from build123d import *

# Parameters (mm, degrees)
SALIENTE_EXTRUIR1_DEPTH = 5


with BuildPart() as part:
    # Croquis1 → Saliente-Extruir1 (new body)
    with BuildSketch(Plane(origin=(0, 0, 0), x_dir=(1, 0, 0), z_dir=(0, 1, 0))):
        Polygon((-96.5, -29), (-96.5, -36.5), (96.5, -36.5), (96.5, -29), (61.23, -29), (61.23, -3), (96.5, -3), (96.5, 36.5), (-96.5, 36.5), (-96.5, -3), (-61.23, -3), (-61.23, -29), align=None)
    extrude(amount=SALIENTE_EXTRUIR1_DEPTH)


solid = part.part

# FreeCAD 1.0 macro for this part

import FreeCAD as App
import Part
import Sketcher

V = App.Vector


def add_polygon(sketch, points):
    """Adds a closed chain of lines whose ends are joined by coincident constraints."""
    first, n = sketch.GeometryCount, len(points)
    for a, b in zip(points, points[1:] + points[:1]):
        sketch.addGeometry(Part.LineSegment(App.Vector(*a, 0), App.Vector(*b, 0)), False)
    for i in range(n):
        sketch.addConstraint(Sketcher.Constraint("Coincident", first + i, 2, first + (i + 1) % n, 1))

doc = App.newDocument("Part")
body = doc.addObject("PartDesign::Body", "Body")

sketch1 = body.newObject("Sketcher::SketchObject", "Sketch")
sketch1.AttachmentSupport = (doc.getObject("XZ_Plane"), [""])
sketch1.MapMode = "FlatFace"
add_polygon(sketch1, [(-96, 29), (-96, 36), (96, 36), (96, 29), (61, 29), (61, 3), (96, 3), (96, -36), (-96, -36), (-96, 3), (-61, 3), (-61, 29)])
sketch1.addConstraint(Sketcher.Constraint("Vertical", 0))
sketch1.addConstraint(Sketcher.Constraint("Horizontal", 1))
sketch1.addConstraint(Sketcher.Constraint("Vertical", 2))
sketch1.addConstraint(Sketcher.Constraint("Horizontal", 3))
sketch1.addConstraint(Sketcher.Constraint("Vertical", 4))
sketch1.addConstraint(Sketcher.Constraint("Horizontal", 5))
sketch1.addConstraint(Sketcher.Constraint("Vertical", 6))
sketch1.addConstraint(Sketcher.Constraint("Horizontal", 7))
sketch1.addConstraint(Sketcher.Constraint("Vertical", 8))
sketch1.addConstraint(Sketcher.Constraint("Horizontal", 9))
sketch1.addConstraint(Sketcher.Constraint("Vertical", 10))
sketch1.addConstraint(Sketcher.Constraint("Horizontal", 11))
sketch1.addConstraint(Sketcher.Constraint("Symmetric", 0, 2, 6, 2, -1, 1))
sketch1.addConstraint(Sketcher.Constraint("Symmetric", 5, 2, 8, 2, -2))
sketch1.addConstraint(Sketcher.Constraint("Symmetric", 3, 2, 10, 2, -2))
sketch1.addConstraint(Sketcher.Constraint("Vertical", 2, 2, 5, 2))
sketch1.addConstraint(Sketcher.Constraint("DistanceX", 1, 1, 1, 2, 193.0))
sketch1.addConstraint(Sketcher.Constraint("DistanceY", 4, 2, 4, 1, 26.0))
sketch1.addConstraint(Sketcher.Constraint("DistanceY", 0, 1, 0, 2, 7.5))
sketch1.addConstraint(Sketcher.Constraint("DistanceY", 6, 2, 6, 1, 39.5))
sketch1.addConstraint(Sketcher.Constraint("DistanceX", 3, 2, 3, 1, 35.27))
pad1 = body.newObject("PartDesign::Pad", "Pad")
pad1.Profile = sketch1
pad1.Length = 5
pad1.Reversed = True

doc.recompute()
